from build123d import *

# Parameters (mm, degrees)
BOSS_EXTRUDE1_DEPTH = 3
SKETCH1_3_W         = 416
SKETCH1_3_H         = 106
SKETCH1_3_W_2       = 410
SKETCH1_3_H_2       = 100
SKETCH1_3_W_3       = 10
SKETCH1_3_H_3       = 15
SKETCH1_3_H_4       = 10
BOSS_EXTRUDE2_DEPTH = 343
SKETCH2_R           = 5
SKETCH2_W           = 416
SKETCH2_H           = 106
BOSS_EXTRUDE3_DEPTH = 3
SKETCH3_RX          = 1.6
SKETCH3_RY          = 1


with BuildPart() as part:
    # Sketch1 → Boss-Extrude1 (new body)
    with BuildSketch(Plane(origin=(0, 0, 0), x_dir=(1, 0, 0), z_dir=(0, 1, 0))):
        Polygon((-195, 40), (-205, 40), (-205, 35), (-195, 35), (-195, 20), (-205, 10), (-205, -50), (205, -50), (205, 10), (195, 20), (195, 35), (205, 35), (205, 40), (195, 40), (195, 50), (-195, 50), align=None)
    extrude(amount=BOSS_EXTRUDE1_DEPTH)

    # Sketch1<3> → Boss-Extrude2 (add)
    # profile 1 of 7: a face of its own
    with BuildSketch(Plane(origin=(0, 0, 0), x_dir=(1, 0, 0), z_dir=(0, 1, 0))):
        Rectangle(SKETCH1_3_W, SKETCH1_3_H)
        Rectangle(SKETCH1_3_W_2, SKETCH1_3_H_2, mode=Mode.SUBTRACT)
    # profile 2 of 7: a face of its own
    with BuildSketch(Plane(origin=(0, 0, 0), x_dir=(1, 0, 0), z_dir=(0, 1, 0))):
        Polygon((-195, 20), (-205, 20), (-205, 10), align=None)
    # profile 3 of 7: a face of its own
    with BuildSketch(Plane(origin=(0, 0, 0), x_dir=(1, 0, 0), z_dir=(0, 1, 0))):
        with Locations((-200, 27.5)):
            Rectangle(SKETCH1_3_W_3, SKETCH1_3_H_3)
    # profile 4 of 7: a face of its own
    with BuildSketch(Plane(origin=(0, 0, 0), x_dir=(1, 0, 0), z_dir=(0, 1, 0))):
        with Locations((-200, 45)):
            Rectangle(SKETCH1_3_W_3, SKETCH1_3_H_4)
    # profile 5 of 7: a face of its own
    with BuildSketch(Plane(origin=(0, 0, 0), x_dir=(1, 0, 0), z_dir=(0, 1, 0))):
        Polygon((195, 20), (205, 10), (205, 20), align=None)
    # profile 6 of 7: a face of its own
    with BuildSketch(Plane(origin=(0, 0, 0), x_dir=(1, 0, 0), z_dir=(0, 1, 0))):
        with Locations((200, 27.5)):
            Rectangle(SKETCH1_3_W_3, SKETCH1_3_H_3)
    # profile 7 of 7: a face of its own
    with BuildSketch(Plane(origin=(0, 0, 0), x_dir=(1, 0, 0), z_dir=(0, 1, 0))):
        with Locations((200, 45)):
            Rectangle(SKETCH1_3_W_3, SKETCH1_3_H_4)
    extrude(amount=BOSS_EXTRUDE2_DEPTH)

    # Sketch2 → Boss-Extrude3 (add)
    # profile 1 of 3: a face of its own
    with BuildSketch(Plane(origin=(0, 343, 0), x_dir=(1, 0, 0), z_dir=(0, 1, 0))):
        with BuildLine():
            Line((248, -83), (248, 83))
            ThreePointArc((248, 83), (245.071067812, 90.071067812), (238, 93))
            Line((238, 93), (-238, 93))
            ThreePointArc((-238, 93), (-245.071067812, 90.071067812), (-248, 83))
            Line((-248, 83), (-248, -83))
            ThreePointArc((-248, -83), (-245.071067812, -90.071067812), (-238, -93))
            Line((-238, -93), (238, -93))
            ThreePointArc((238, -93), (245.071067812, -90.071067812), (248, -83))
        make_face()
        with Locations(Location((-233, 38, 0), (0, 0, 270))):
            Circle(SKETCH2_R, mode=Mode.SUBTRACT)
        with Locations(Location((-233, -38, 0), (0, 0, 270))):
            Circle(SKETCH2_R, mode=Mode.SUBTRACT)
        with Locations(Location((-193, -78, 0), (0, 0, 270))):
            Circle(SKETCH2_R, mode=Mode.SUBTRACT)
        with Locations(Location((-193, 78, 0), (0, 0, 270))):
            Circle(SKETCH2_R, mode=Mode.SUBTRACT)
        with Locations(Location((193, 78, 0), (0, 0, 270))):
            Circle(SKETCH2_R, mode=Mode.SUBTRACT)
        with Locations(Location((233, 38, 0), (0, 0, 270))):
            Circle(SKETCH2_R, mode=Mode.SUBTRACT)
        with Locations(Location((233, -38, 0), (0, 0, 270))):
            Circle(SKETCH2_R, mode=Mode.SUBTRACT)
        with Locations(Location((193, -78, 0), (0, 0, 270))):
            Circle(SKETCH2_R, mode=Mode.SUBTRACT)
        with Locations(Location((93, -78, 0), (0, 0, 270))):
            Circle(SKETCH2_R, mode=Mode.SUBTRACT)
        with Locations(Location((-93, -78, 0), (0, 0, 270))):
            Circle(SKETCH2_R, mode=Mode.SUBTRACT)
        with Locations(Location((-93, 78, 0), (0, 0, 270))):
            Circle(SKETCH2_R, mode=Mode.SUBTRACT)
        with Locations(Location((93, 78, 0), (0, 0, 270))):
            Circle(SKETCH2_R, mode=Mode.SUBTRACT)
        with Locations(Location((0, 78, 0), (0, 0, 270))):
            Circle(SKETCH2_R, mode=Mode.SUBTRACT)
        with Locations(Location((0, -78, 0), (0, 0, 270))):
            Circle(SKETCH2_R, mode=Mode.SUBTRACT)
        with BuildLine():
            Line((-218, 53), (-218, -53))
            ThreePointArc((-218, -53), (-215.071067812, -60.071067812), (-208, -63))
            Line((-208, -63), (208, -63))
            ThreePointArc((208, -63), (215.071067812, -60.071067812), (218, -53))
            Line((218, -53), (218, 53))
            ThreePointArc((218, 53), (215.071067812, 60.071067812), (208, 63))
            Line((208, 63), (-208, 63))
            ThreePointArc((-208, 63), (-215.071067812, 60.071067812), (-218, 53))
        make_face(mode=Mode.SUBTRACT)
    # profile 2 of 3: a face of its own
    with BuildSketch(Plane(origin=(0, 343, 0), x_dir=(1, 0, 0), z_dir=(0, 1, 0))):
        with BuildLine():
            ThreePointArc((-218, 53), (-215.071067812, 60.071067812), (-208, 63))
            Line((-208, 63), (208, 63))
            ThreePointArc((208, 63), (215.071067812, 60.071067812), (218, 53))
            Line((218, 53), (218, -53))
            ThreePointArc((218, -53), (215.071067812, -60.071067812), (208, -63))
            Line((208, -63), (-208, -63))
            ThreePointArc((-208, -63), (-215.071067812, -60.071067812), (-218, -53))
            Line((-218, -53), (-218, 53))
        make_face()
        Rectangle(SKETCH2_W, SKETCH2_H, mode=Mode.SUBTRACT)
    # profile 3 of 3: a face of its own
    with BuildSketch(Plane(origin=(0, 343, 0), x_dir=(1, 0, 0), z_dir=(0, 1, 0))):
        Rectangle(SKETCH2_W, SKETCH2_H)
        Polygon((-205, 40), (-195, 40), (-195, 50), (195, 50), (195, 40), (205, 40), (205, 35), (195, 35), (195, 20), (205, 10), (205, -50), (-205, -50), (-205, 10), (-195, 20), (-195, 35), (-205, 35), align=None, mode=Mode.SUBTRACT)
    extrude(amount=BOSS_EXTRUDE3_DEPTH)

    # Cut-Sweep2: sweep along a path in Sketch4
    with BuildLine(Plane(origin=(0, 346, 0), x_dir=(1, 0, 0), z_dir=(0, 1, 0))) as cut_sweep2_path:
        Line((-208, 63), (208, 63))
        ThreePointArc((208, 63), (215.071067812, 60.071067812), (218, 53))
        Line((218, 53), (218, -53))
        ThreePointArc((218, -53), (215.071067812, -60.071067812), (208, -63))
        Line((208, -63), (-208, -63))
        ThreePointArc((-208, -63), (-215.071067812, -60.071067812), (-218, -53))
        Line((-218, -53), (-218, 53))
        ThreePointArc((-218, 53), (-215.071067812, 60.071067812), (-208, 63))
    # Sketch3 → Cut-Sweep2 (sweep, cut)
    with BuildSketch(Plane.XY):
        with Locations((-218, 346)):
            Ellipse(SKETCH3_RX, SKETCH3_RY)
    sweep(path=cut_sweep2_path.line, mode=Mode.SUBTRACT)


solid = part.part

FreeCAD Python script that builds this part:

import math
import FreeCAD as App
import Part
import Sketcher
Q = App.Units.Quantity


def add_polygon(sketch, points):
    """Adds a closed chain of lines whose ends are joined by coincident constraints."""
    first, n = sketch.GeometryCount, len(points)
    for a, b in zip(points, points[1:] + points[:1]):
        sketch.addGeometry(Part.LineSegment(App.Vector(*a, 0), App.Vector(*b, 0)), False)
    for i in range(n):
        sketch.addConstraint(Sketcher.Constraint("Coincident", first + i, 2, first + (i + 1) % n, 1))

doc = App.newDocument("Part")
body = doc.addObject("PartDesign::Body", "Body")

sketch1 = body.newObject("Sketcher::SketchObject", "Sketch")
sketch1.AttachmentSupport = (doc.getObject("XZ_Plane"), [""])
sketch1.MapMode = "FlatFace"
add_polygon(sketch1, [(-195, -40), (-205, -40), (-205, -35), (-195, -35), (-195, -20), (-205, -10), (-205, 50), (205, 50), (205, -10), (195, -20), (195, -35), (205, -35), (205, -40), (195, -40), (195, -50), (-195, -50)])
sketch1.addConstraint([
    Sketcher.Constraint("Horizontal", 0),
    Sketcher.Constraint("Vertical", 1),
    Sketcher.Constraint("Horizontal", 2),
    Sketcher.Constraint("Vertical", 3),
    Sketcher.Constraint("Vertical", 5),
    Sketcher.Constraint("Horizontal", 6),
    Sketcher.Constraint("Vertical", 7),
    Sketcher.Constraint("Vertical", 9),
    Sketcher.Constraint("Horizontal", 10),
    Sketcher.Constraint("Vertical", 11),
    Sketcher.Constraint("Horizontal", 12),
    Sketcher.Constraint("Vertical", 13),
    Sketcher.Constraint("Horizontal", 14),
    Sketcher.Constraint("Vertical", 15),
    Sketcher.Constraint("Symmetric", 4, 2, 7, 2, -2),
    Sketcher.Constraint("Symmetric", 3, 2, 8, 2, -2),
    Sketcher.Constraint("Symmetric", 1, 2, 10, 2, -2),
    Sketcher.Constraint("Symmetric", 12, 2, 15, 2, -2),
    Sketcher.Constraint("Perpendicular", 4, 8),
    Sketcher.Constraint("Vertical", 1, 2, 4, 2),
    Sketcher.Constraint("Vertical", 9, 2, 12, 2),
    Sketcher.Constraint("Equal", 12, 13),
    Sketcher.Constraint("DistanceX", 0, 2, 0, 1, Q("10 mm")),
    Sketcher.Constraint("DistanceX", 6, 1, 6, 2, Q("410 mm")),
    Sketcher.Constraint("DistanceY", 1, 1, 1, 2, Q("5 mm")),
    Sketcher.Constraint("DistanceY", 3, 1, 3, 2, Q("15 mm")),
    Sketcher.Constraint("DistanceY", 5, 1, 5, 2, Q("60 mm")),
    Sketcher.Constraint("DistanceY", 0, 2, -1, 1, Q("40 mm")),
])
pad1 = body.newObject("PartDesign::Pad", "Pad")
pad1.Profile = sketch1
pad1.Length = 3
pad1.Reversed = True

sketch2 = body.newObject("Sketcher::SketchObject", "Sketch001")
sketch2.AttachmentSupport = (doc.getObject("XZ_Plane"), [""])
sketch2.MapMode = "FlatFace"
add_polygon(sketch2, [(-208, -53), (-208, 53), (208, 53), (208, -53)])
add_polygon(sketch2, [(205, 50), (-205, 50), (-205, -10), (-195, -20), (-195, -35), (-205, -35), (-205, -40), (-195, -40), (-195, -50), (195, -50), (195, -40), (205, -40), (205, -35), (195, -35), (195, -20), (205, -10)])
sketch2.addConstraint([
    Sketcher.Constraint("Vertical", 0),
    Sketcher.Constraint("Horizontal", 1),
    Sketcher.Constraint("Vertical", 2),
    Sketcher.Constraint("Horizontal", 3),
    Sketcher.Constraint("Horizontal", 4),
    Sketcher.Constraint("Vertical", 5),
    Sketcher.Constraint("Vertical", 7),
    Sketcher.Constraint("Horizontal", 8),
    Sketcher.Constraint("Vertical", 9),
    Sketcher.Constraint("Horizontal", 10),
    Sketcher.Constraint("Vertical", 11),
    Sketcher.Constraint("Horizontal", 12),
    Sketcher.Constraint("Vertical", 13),
    Sketcher.Constraint("Horizontal", 14),
    Sketcher.Constraint("Vertical", 15),
    Sketcher.Constraint("Horizontal", 16),
    Sketcher.Constraint("Vertical", 17),
    Sketcher.Constraint("Vertical", 19),
    Sketcher.Constraint("Symmetric", 0, 2, 2, 2, -1, 1),
    Sketcher.Constraint("Symmetric", 10, 2, 13, 2, -2),
    Sketcher.Constraint("Symmetric", 8, 2, 15, 2, -2),
    Sketcher.Constraint("Symmetric", 6, 2, 17, 2, -2),
    Sketcher.Constraint("Symmetric", 5, 2, 18, 2, -2),
    Sketcher.Constraint("Perpendicular", 6, 18),
    Sketcher.Constraint("Vertical", 5, 2, 8, 2),
    Sketcher.Constraint("Vertical", 7, 2, 10, 2),
    Sketcher.Constraint("Equal", 16, 11),
    Sketcher.Constraint("DistanceX", 1, 1, 1, 2, Q("416 mm")),
    Sketcher.Constraint("DistanceX", 4, 2, 4, 1, Q("410 mm")),
    Sketcher.Constraint("DistanceX", 8, 2, 8, 1, Q("10 mm")),
    Sketcher.Constraint("DistanceY", 0, 1, 0, 2, Q("106 mm")),
    Sketcher.Constraint("DistanceY", 5, 2, 5, 1, Q("60 mm")),
    Sketcher.Constraint("DistanceY", 7, 2, 7, 1, Q("15 mm")),
    Sketcher.Constraint("DistanceY", 9, 2, 9, 1, Q("5 mm")),
    Sketcher.Constraint("DistanceY", -1, 1, 4, 2, Q("50 mm")),
])
pad2 = body.newObject("PartDesign::Pad", "Pad001")
pad2.Profile = sketch2
pad2.Length = 343
pad2.Reversed = True

sketch3 = body.newObject("Sketcher::SketchObject", "Sketch002")
sketch3.AttachmentSupport = (doc.getObject("XZ_Plane"), [""])
sketch3.MapMode = "FlatFace"
sketch3.AttachmentOffset = App.Placement(App.Vector(0, 0, -343), App.Rotation())
sketch3.addGeometry(Part.LineSegment(App.Vector(248, 83, 0), App.Vector(248, -83, 0)), False)
sketch3.addGeometry(Part.ArcOfCircle(Part.Circle(App.Vector(238, -83, 0), App.Vector(0, 0, 1), 10), math.radians(-90), math.radians(0)), False)
sketch3.addGeometry(Part.LineSegment(App.Vector(238, -93, 0), App.Vector(-238, -93, 0)), False)
sketch3.addGeometry(Part.ArcOfCircle(Part.Circle(App.Vector(-238, -83, 0), App.Vector(0, 0, 1), 10), math.radians(180), math.radians(270)), False)
sketch3.addGeometry(Part.LineSegment(App.Vector(-248, -83, 0), App.Vector(-248, 83, 0)), False)
sketch3.addGeometry(Part.ArcOfCircle(Part.Circle(App.Vector(-238, 83, 0), App.Vector(0, 0, 1), 10), math.radians(90), math.radians(180)), False)
sketch3.addGeometry(Part.LineSegment(App.Vector(-238, 93, 0), App.Vector(238, 93, 0)), False)
sketch3.addGeometry(Part.ArcOfCircle(Part.Circle(App.Vector(238, 83, 0), App.Vector(0, 0, 1), 10), math.radians(0), math.radians(90)), False)
sketch3.addGeometry(Part.Circle(App.Vector(-193, 78, 0), App.Vector(0, 0, 1), 5), False)
sketch3.addGeometry(Part.Circle(App.Vector(-93, 78, 0), App.Vector(0, 0, 1), 5), False)
sketch3.addGeometry(Part.Circle(App.Vector(-233, 38, 0), App.Vector(0, 0, 1), 5), False)
sketch3.addGeometry(Part.Circle(App.Vector(0, 78, 0), App.Vector(0, 0, 1), 5), False)
sketch3.addGeometry(Part.Circle(App.Vector(93, 78, 0), App.Vector(0, 0, 1), 5), False)
sketch3.addGeometry(Part.Circle(App.Vector(193, 78, 0), App.Vector(0, 0, 1), 5), False)
sketch3.addGeometry(Part.Circle(App.Vector(233, 38, 0), App.Vector(0, 0, 1), 5), False)
sketch3.addGeometry(Part.Circle(App.Vector(-233, -38, 0), App.Vector(0, 0, 1), 5), False)
sketch3.addGeometry(Part.Circle(App.Vector(-193, -78, 0), App.Vector(0, 0, 1), 5), False)
sketch3.addGeometry(Part.Circle(App.Vector(-93, -78, 0), App.Vector(0, 0, 1), 5), False)
sketch3.addGeometry(Part.Circle(App.Vector(233, -38, 0), App.Vector(0, 0, 1), 5), False)
sketch3.addGeometry(Part.Circle(App.Vector(0, -78, 0), App.Vector(0, 0, 1), 5), False)
sketch3.addGeometry(Part.Circle(App.Vector(93, -78, 0), App.Vector(0, 0, 1), 5), False)
sketch3.addGeometry(Part.Circle(App.Vector(193, -78, 0), App.Vector(0, 0, 1), 5), False)
add_polygon(sketch3, [(-205, -40), (-195, -40), (-195, -50), (195, -50), (195, -40), (205, -40), (205, -35), (195, -35), (195, -20), (205, -10), (205, 50), (-205, 50), (-205, -10), (-195, -20), (-195, -35), (-205, -35)])
sketch3.addConstraint([
    Sketcher.Constraint("Tangent", 0, 2, 1, 2),
    Sketcher.Constraint("Tangent", 1, 1, 2, 1),
    Sketcher.Constraint("Tangent", 2, 2, 3, 2),
    Sketcher.Constraint("Tangent", 3, 1, 4, 1),
    Sketcher.Constraint("Tangent", 4, 2, 5, 2),
    Sketcher.Constraint("Tangent", 5, 1, 6, 1),
    Sketcher.Constraint("Tangent", 6, 2, 7, 2),
    Sketcher.Constraint("Tangent", 7, 1, 0, 1),
    Sketcher.Constraint("Vertical", 0),
    Sketcher.Constraint("Horizontal", 2),
    Sketcher.Constraint("Vertical", 4),
    Sketcher.Constraint("Horizontal", 6),
    Sketcher.Constraint("Horizontal", 22),
    Sketcher.Constraint("Vertical", 23),
    Sketcher.Constraint("Horizontal", 24),
    Sketcher.Constraint("Vertical", 25),
    Sketcher.Constraint("Horizontal", 26),
    Sketcher.Constraint("Vertical", 27),
    Sketcher.Constraint("Horizontal", 28),
    Sketcher.Constraint("Vertical", 29),
    Sketcher.Constraint("Vertical", 31),
    Sketcher.Constraint("Horizontal", 32),
    Sketcher.Constraint("Vertical", 33),
    Sketcher.Constraint("Vertical", 35),
    Sketcher.Constraint("Horizontal", 36),
    Sketcher.Constraint("Vertical", 37),
    Sketcher.Constraint("Equal", 1, 3),
    Sketcher.Constraint("Equal", 3, 5),
    Sketcher.Constraint("Equal", 5, 7),
    Sketcher.Constraint("Equal", 8, 9),
    Sketcher.Constraint("Equal", 9, 10),
    Sketcher.Constraint("Equal", 10, 11),
    Sketcher.Constraint("Equal", 11, 12),
    Sketcher.Constraint("Equal", 12, 13),
    Sketcher.Constraint("Equal", 13, 14),
    Sketcher.Constraint("Equal", 14, 15),
    Sketcher.Constraint("Equal", 15, 16),
    Sketcher.Constraint("Equal", 16, 17),
    Sketcher.Constraint("Equal", 17, 18),
    Sketcher.Constraint("Equal", 18, 19),
    Sketcher.Constraint("Equal", 19, 20),
    Sketcher.Constraint("Equal", 20, 21),
    Sketcher.Constraint("Symmetric", 1, 3, 5, 3, -1, 1),
    Sketcher.Constraint("Symmetric", 14, 3, 15, 3, -1, 1),
    Sketcher.Constraint("Symmetric", 13, 3, 16, 3, -1, 1),
    Sketcher.Constraint("Symmetric", 12, 3, 17, 3, -1, 1),
    Sketcher.Constraint("Symmetric", 10, 3, 18, 3, -1, 1),
    Sketcher.Constraint("Symmetric", 11, 3, 19, 3, -1, 1),
    Sketcher.Constraint("Symmetric", 9, 3, 20, 3, -1, 1),
    Sketcher.Constraint("Symmetric", 8, 3, 21, 3, -1, 1),
    Sketcher.Constraint("Symmetric", 9, 3, 12, 3, -2),
    Sketcher.Constraint("Symmetric", 8, 3, 13, 3, -2),
    Sketcher.Constraint("Symmetric", 10, 3, 14, 3, -2),
    Sketcher.Constraint("Symmetric", 22, 2, 25, 2, -2),
    Sketcher.Constraint("Symmetric", 30, 2, 33, 2, -2),
    Sketcher.Constraint("Symmetric", 29, 2, 34, 2, -2),
    Sketcher.Constraint("Symmetric", 27, 2, 36, 2, -2),
    Sketcher.Constraint("PointOnObject", 11, 3, -2),
    Sketcher.Constraint("Perpendicular", 30, 34),
    Sketcher.Constraint("Horizontal", 8, 3, 9, 3),
    Sketcher.Constraint("Horizontal", 9, 3, 11, 3),
    Sketcher.Constraint("Vertical", 25, 2, 28, 2),
    Sketcher.Constraint("Vertical", 27, 2, 30, 2),
    Sketcher.Constraint("Equal", 36, 23),
    Sketcher.Constraint("Diameter", 8, Q("10 mm")),
    Sketcher.Constraint("Radius", 1, Q("10 mm")),
    Sketcher.Constraint("DistanceX", 2, 2, 2, 1, Q("476 mm")),
    Sketcher.Constraint("DistanceX", 22, 1, 22, 2, Q("10 mm")),
    Sketcher.Constraint("DistanceX", 24, 1, 24, 2, Q("390 mm")),
    Sketcher.Constraint("DistanceY", 0, 2, 0, 1, Q("166 mm")),
    Sketcher.Constraint("DistanceY", 27, 1, 27, 2, Q("5 mm")),
    Sketcher.Constraint("DistanceY", 29, 1, 29, 2, Q("15 mm")),
    Sketcher.Constraint("DistanceY", 31, 1, 31, 2, Q("60 mm")),
    Sketcher.Constraint("DistanceX", 8, 3, -1, 1, Q("193 mm")),
    Sketcher.Constraint("DistanceY", -1, 1, 8, 3, Q("78 mm")),
    Sketcher.Constraint("DistanceX", 9, 3, -1, 1, Q("93 mm")),
    Sketcher.Constraint("DistanceX", 10, 3, -1, 1, Q("233 mm")),
    Sketcher.Constraint("DistanceY", -1, 1, 10, 3, Q("38 mm")),
    Sketcher.Constraint("DistanceY", 22, 2, -1, 1, Q("40 mm")),
])
pad3 = body.newObject("PartDesign::Pad", "Pad002")
pad3.Profile = sketch3
pad3.Length = 3
pad3.Reversed = True

sketch4 = body.newObject("Sketcher::SketchObject", "Sketch003")
sketch4.AttachmentSupport = (doc.getObject("XY_Plane"), [""])
sketch4.MapMode = "FlatFace"
sketch4.addGeometry(Part.Ellipse(App.Vector(-216.4, 346, 0), App.Vector(-218, 347, 0), App.Vector(-218, 346, 0)), False)
sketch4.addConstraint(Sketcher.Constraint("Block", 0))

sketch5 = body.newObject("Sketcher::SketchObject", "Sketch004")
sketch5.AttachmentSupport = (doc.getObject("XZ_Plane"), [""])
sketch5.MapMode = "FlatFace"
sketch5.AttachmentOffset = App.Placement(App.Vector(0, 0, -346), App.Rotation())
sketch5.addGeometry([
    Part.LineSegment(App.Vector(-208, -63, 0), App.Vector(208, -63, 0)),
    Part.ArcOfCircle(Part.Circle(App.Vector(208, -53, 0), App.Vector(0, 0, 1), 10), math.radians(-90), math.radians(0)),
    Part.LineSegment(App.Vector(218, -53, 0), App.Vector(218, 53, 0)),
    Part.ArcOfCircle(Part.Circle(App.Vector(208, 53, 0), App.Vector(0, 0, 1), 10), math.radians(0), math.radians(90)),
    Part.LineSegment(App.Vector(208, 63, 0), App.Vector(-208, 63, 0)),
    Part.ArcOfCircle(Part.Circle(App.Vector(-208, 53, 0), App.Vector(0, 0, 1), 10), math.radians(90), math.radians(180)),
    Part.LineSegment(App.Vector(-218, 53, 0), App.Vector(-218, -53, 0)),
    Part.ArcOfCircle(Part.Circle(App.Vector(-208, -53, 0), App.Vector(0, 0, 1), 10), math.radians(180), math.radians(270)),
], False)
sketch5.addConstraint([
    Sketcher.Constraint("Tangent", 0, 2, 1, 1),
    Sketcher.Constraint("Tangent", 1, 2, 2, 1),
    Sketcher.Constraint("Tangent", 2, 2, 3, 1),
    Sketcher.Constraint("Tangent", 3, 2, 4, 1),
    Sketcher.Constraint("Tangent", 4, 2, 5, 1),
    Sketcher.Constraint("Tangent", 5, 2, 6, 1),
    Sketcher.Constraint("Tangent", 6, 2, 7, 1),
    Sketcher.Constraint("Tangent", 7, 2, 0, 1),
    Sketcher.Constraint("Horizontal", 0),
    Sketcher.Constraint("Vertical", 2),
    Sketcher.Constraint("Horizontal", 4),
    Sketcher.Constraint("Vertical", 6),
    Sketcher.Constraint("Equal", 1, 3),
    Sketcher.Constraint("Equal", 3, 5),
    Sketcher.Constraint("Equal", 5, 7),
    Sketcher.Constraint("Symmetric", 1, 3, 5, 3, -1, 1),
    Sketcher.Constraint("Radius", 1, Q("10 mm")),
    Sketcher.Constraint("DistanceX", 0, 1, 0, 2, Q("416 mm")),
    Sketcher.Constraint("DistanceY", 2, 1, 2, 2, Q("106 mm")),
])
doc.recompute()

subtractivepipe = body.newObject("PartDesign::SubtractivePipe", "SubtractivePipe")
subtractivepipe.Profile = sketch4
subtractivepipe.Spine = (sketch5, ["Edge1", "Edge2", "Edge3", "Edge4", "Edge5", "Edge6", "Edge7", "Edge8"])

doc.recompute()
